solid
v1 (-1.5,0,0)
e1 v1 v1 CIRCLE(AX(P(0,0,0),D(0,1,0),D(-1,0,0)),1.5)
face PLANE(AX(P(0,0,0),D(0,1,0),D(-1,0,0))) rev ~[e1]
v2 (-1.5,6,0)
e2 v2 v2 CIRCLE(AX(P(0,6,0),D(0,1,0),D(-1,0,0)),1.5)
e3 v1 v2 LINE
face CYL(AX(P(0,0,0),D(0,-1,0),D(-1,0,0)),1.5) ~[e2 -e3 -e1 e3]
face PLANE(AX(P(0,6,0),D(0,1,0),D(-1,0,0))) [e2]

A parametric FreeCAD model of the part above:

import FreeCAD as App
import Part
import Sketcher
from FreeCAD import Vector
Q = App.Units.Quantity

doc = App.newDocument("Part")
body = doc.addObject("PartDesign::Body", "Body")

sketch1 = body.newObject("Sketcher::SketchObject", "Sketch")
sketch1.AttachmentSupport = (doc.getObject("XZ_Plane"), [""])
sketch1.MapMode = "FlatFace"
sketch1.addGeometry(Part.Circle(Vector(0, 0, 0), Vector(0, 0, 1), 1.5), False)
sketch1.addConstraint(Sketcher.Constraint("Coincident", 0, 3, -1, 1))
sketch1.addConstraint(Sketcher.Constraint("Diameter", 0, Q("3 mm")))
pad1 = body.newObject("PartDesign::Pad", "Pad")
pad1.Profile = sketch1
pad1.Length = 6
pad1.Reversed = True

doc.recompute()
